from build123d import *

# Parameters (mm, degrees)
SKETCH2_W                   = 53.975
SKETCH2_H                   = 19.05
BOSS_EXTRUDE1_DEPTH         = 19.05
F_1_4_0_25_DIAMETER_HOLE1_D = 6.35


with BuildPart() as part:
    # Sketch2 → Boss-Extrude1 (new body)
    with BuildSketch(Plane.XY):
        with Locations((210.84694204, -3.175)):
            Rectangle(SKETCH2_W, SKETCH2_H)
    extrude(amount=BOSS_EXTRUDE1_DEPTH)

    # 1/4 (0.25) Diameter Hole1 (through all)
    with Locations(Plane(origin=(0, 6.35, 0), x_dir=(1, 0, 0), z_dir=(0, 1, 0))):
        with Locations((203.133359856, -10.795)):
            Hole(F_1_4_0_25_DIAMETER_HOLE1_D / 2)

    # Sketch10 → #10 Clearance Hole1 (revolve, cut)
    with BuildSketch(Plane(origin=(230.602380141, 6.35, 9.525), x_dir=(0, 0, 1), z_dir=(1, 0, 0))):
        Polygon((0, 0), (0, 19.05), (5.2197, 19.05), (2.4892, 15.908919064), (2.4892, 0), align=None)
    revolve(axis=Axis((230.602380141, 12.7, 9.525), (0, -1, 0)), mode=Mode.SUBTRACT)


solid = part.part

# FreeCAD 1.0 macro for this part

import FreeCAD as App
import Part
import Sketcher

V = App.Vector
Q = App.Units.Quantity

doc = App.newDocument("Part")
params = doc.addObject("Spreadsheet::Sheet", "Params")
for row, (alias, value) in enumerate([
    ("sketch1_height", "0.75 in"),
    ("sketch1_width", "2.125 in"),
    ("pad1_length", "0.75 in"),
    ("sketch2_diameter", "0.25 in"),
    ("hole_diameter", "0.25 in"),
    ("sketch3_width", "0.75 in"),
    ("sketch3_height", "0.098 in"),
    ("groove_angle", "360 deg"),
], start=1):
    params.set(f"A{row}", alias)
    params.set(f"B{row}", "=" + value)
    params.setAlias(f"B{row}", alias)

body = doc.addObject("PartDesign::Body", "Body")

# Sketch on XY plane
sketch1 = body.newObject("Sketcher::SketchObject", "Sketch")
sketch1.AttachmentSupport = (doc.getObject("XY_Plane"), [""])
sketch1.MapMode = "FlatFace"
sketch1.addGeometry([
    Part.LineSegment(V(184, 6, 0), V(184, -13, 0)),
    Part.LineSegment(V(184, -13, 0), V(238, -13, 0)),
    Part.LineSegment(V(238, -13, 0), V(238, 6, 0)),
    Part.LineSegment(V(238, 6, 0), V(184, 6, 0)),
], False)
sketch1.addConstraint([
    Sketcher.Constraint("Coincident", 0, 2, 1, 1),
    Sketcher.Constraint("Coincident", 1, 2, 2, 1),
    Sketcher.Constraint("Coincident", 2, 2, 3, 1),
    Sketcher.Constraint("Coincident", 3, 2, 0, 1),
    Sketcher.Constraint("Vertical", 0),
    Sketcher.Constraint("Horizontal", 1),
    Sketcher.Constraint("Vertical", 2),
    Sketcher.Constraint("Horizontal", 3),
    Sketcher.Constraint("DistanceY", 0, 2, 0, 1, Q("0.75 in")),
    Sketcher.Constraint("DistanceY", 0, 2, -1, 1, Q("0.5 in")),
    Sketcher.Constraint("DistanceX", 1, 1, 1, 2, Q("2.125 in")),
    Sketcher.Constraint("DistanceX", -1, 1, 0, 2, 183.859442),
])
sketch1.setExpression("Constraints[8]", "Params.sketch1_height")
sketch1.setExpression("Constraints[10]", "Params.sketch1_width")
pad1 = body.newObject("PartDesign::Pad", "Pad")
pad1.Profile = sketch1
pad1.setExpression("Length", "Params.pad1_length")

# Sketch on XZ plane
sketch2 = body.newObject("Sketcher::SketchObject", "Sketch001")
sketch2.AttachmentSupport = (doc.getObject("XZ_Plane"), [""])
sketch2.MapMode = "FlatFace"
sketch2.AttachmentOffset = App.Placement(V(0, 0, -0.25 * 25.4), App.Rotation())
sketch2.addGeometry(Part.Circle(V(203.1, 10.8, 0), V(0, 0, 1), 3.2), False)
sketch2.addConstraint([
    Sketcher.Constraint("Diameter", 0, Q("0.25 in")),
    Sketcher.Constraint("DistanceY", -1, 1, 0, 3, Q("0.425 in")),
    Sketcher.Constraint("DistanceX", -1, 1, 0, 3, 203.13336),
])
sketch2.setExpression("Constraints[0]", "Params.sketch2_diameter")
doc.recompute()
hole = body.newObject("PartDesign::Hole", "Hole")
hole.Profile = sketch2
hole.ThreadType = "None"
hole.setExpression("Diameter", "Params.hole_diameter")
hole.DepthType = "ThroughAll"
hole.Reversed = True

# Sketch on YZ plane
sketch3 = body.newObject("Sketcher::SketchObject", "Sketch002")
sketch3.AttachmentSupport = (doc.getObject("YZ_Plane"), [""])
sketch3.MapMode = "FlatFace"
sketch3.AttachmentOffset = App.Placement(V(0, 0, 230.60238), App.Rotation())
sketch3.addGeometry([
    Part.LineSegment(V(-12.7, 9.5, 0), V(6.3, 9.5, 0)),  # 0
    Part.LineSegment(V(6.3, 9.5, 0), V(6.3, 12, 0)),  # 1
    Part.LineSegment(V(6.3, 12, 0), V(-9.6, 12, 0)),  # 2
    Part.LineSegment(V(-9.6, 12, 0), V(-12.7, 14.7, 0)),  # 3
    Part.LineSegment(V(-12.7, 14.7, 0), V(-12.7, 9.5, 0)),  # 4
], False)
sketch3.addGeometry(Part.LineSegment(V(6.3, 9.5, 0), V(-12.7, 9.5, 0)), True)  # axis
sketch3.addConstraint([
    Sketcher.Constraint("Coincident", 0, 2, 1, 1),
    Sketcher.Constraint("Coincident", 1, 2, 2, 1),
    Sketcher.Constraint("Coincident", 2, 2, 3, 1),
    Sketcher.Constraint("Coincident", 3, 2, 4, 1),
    Sketcher.Constraint("Coincident", 4, 2, 0, 1),
    Sketcher.Constraint("Horizontal", 0),
    Sketcher.Constraint("Vertical", 1),
    Sketcher.Constraint("Horizontal", 2),
    Sketcher.Constraint("Vertical", 4),
    Sketcher.Constraint("Horizontal", 5),
    Sketcher.Constraint("Coincident", 5, 1, 0, 2),
    Sketcher.Constraint("Vertical", 3, 2, 5, 2),
    Sketcher.Constraint("Angle", 3, Q("139 deg")),
    Sketcher.Constraint("DistanceX", 0, 1, 0, 2, Q("0.75 in")),
    Sketcher.Constraint("DistanceX", 3, 2, -1, 1, Q("0.5 in")),
    Sketcher.Constraint("DistanceY", 1, 1, 1, 2, Q("0.098 in")),
    Sketcher.Constraint("DistanceY", 4, 2, 4, 1, Q("0.2055 in")),
    Sketcher.Constraint("DistanceY", -1, 1, 0, 2, Q("0.375 in")),
])
sketch3.setExpression("Constraints[13]", "Params.sketch3_width")
sketch3.setExpression("Constraints[15]", "Params.sketch3_height")
groove = body.newObject("PartDesign::Groove", "Groove")
groove.Profile = sketch3
groove.ReferenceAxis = (sketch3, ["Axis0"])
groove.setExpression("Angle", "Params.groove_angle")

doc.recompute()
